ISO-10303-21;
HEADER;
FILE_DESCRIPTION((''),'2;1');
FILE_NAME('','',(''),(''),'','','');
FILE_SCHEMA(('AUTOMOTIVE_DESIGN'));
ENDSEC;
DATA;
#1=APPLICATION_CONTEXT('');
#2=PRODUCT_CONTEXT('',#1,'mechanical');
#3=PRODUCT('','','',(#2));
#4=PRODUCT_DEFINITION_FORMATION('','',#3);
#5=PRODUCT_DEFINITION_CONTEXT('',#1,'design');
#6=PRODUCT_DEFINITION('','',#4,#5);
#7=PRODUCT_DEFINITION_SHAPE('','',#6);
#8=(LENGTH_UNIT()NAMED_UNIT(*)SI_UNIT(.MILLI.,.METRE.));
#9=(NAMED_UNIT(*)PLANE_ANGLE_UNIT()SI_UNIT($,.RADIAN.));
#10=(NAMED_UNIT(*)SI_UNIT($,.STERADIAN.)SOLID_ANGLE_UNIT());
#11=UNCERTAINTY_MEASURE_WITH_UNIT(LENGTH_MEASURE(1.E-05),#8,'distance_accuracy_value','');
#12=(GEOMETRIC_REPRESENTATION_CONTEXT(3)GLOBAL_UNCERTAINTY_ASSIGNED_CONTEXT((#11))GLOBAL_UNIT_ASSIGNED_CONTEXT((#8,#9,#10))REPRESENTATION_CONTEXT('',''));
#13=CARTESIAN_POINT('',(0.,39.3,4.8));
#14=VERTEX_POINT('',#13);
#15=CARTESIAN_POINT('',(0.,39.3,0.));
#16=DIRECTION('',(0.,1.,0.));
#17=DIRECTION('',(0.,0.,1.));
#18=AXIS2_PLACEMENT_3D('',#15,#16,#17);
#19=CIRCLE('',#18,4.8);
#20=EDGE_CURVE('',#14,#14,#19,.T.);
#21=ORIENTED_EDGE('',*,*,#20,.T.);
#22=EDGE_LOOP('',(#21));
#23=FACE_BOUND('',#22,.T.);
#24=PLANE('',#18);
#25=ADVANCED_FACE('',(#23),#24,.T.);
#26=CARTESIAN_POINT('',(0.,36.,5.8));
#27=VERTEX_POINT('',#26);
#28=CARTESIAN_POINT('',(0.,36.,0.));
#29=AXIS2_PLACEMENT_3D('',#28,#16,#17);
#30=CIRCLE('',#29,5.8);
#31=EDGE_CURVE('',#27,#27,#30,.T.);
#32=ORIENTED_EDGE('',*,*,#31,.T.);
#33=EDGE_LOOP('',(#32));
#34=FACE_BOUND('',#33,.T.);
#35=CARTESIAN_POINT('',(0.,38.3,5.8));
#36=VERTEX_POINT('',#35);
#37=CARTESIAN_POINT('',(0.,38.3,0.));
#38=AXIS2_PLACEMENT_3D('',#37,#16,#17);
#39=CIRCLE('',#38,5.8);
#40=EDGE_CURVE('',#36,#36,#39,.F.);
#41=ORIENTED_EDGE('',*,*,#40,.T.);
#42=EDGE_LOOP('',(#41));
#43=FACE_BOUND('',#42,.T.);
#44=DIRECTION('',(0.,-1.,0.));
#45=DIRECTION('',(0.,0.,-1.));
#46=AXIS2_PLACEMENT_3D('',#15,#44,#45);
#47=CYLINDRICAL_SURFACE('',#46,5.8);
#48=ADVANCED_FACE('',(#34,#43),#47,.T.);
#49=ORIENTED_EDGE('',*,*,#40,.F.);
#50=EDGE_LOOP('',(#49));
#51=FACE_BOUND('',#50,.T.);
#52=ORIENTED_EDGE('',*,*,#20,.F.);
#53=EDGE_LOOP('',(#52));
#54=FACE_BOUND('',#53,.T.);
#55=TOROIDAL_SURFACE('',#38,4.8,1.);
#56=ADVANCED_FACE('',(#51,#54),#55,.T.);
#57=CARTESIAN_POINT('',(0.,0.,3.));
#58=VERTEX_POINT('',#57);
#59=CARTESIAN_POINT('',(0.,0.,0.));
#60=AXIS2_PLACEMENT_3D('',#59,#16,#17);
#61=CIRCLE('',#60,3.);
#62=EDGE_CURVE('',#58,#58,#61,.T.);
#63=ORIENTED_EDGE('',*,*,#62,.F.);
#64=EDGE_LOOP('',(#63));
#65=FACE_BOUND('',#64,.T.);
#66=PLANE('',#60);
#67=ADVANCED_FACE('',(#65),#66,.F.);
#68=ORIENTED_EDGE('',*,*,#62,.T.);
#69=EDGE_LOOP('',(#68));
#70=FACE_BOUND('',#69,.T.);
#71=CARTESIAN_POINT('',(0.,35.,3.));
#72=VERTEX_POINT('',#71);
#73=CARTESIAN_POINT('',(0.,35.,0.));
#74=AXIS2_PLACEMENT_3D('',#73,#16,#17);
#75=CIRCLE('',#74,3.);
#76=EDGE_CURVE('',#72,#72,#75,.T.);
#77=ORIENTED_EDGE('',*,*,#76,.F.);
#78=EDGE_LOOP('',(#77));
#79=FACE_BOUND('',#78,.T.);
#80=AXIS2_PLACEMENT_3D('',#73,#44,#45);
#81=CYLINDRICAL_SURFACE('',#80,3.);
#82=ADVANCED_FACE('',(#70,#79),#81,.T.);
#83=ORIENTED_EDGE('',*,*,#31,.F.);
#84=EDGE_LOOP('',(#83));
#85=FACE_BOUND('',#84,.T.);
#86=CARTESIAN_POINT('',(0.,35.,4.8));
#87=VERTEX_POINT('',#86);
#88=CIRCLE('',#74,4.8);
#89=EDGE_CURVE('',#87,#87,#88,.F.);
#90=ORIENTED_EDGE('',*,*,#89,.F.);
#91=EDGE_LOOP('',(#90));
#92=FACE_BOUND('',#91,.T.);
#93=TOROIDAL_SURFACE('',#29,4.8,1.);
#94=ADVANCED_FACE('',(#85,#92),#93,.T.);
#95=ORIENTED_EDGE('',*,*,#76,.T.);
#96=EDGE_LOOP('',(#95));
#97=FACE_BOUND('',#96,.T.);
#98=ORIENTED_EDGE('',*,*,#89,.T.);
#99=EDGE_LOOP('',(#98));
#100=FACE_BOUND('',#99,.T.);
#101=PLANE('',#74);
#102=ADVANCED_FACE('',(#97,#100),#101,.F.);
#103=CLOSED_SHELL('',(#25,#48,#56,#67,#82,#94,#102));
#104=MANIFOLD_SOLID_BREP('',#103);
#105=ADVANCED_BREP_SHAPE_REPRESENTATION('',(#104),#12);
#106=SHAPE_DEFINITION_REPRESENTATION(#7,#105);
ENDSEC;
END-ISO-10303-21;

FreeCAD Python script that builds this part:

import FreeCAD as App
import Part
import Sketcher
from FreeCAD import Vector


def edges_at(feature, points):
    """Names of the edges that pass closest to the given points."""
    edges = feature.Shape.Edges
    near = lambda p: min(range(len(edges)), key=lambda i: edges[i].distToShape(Part.Vertex(*p))[0])
    return sorted({f"Edge{near(p) + 1}" for p in points})

doc = App.newDocument("Part")
body = doc.addObject("PartDesign::Body", "Body")

# Sketch on XZ plane
sketch1 = body.newObject("Sketcher::SketchObject", "Sketch")
sketch1.AttachmentSupport = (doc.getObject("XZ_Plane"), [""])
sketch1.MapMode = "FlatFace"
sketch1.addGeometry(Part.Circle(Vector(0, 0, 0), Vector(0, 0, 1), 3), False)
sketch1.addConstraint(Sketcher.Constraint("Coincident", 0, 3, -1, 1))
sketch1.addConstraint(Sketcher.Constraint("Diameter", 0, 6.0))
pad1 = body.newObject("PartDesign::Pad", "Pad")
pad1.Profile = sketch1
pad1.Length = 35
pad1.Reversed = True

# Sketch on XZ plane
sketch2 = body.newObject("Sketcher::SketchObject", "Sketch001")
sketch2.AttachmentSupport = (doc.getObject("XZ_Plane"), [""])
sketch2.MapMode = "FlatFace"
sketch2.AttachmentOffset = App.Placement(Vector(0, 0, -35), App.Rotation())
sketch2.addGeometry(Part.Circle(Vector(0, 0, 0), Vector(0, 0, 1), 5.8), False)
sketch2.addConstraint(Sketcher.Constraint("Coincident", 0, 3, -1, 1))
sketch2.addConstraint(Sketcher.Constraint("Diameter", 0, 11.6))
pad2 = body.newObject("PartDesign::Pad", "Pad001")
pad2.Profile = sketch2
pad2.Length = 4.3
pad2.Reversed = True
doc.recompute()

fillet = body.newObject("PartDesign::Fillet", "Fillet")
fillet.Base = (pad2, edges_at(pad2, [(0, 35, -5.8), (0, 39.3, -5.8)]))
fillet.Radius = 1

doc.recompute()
